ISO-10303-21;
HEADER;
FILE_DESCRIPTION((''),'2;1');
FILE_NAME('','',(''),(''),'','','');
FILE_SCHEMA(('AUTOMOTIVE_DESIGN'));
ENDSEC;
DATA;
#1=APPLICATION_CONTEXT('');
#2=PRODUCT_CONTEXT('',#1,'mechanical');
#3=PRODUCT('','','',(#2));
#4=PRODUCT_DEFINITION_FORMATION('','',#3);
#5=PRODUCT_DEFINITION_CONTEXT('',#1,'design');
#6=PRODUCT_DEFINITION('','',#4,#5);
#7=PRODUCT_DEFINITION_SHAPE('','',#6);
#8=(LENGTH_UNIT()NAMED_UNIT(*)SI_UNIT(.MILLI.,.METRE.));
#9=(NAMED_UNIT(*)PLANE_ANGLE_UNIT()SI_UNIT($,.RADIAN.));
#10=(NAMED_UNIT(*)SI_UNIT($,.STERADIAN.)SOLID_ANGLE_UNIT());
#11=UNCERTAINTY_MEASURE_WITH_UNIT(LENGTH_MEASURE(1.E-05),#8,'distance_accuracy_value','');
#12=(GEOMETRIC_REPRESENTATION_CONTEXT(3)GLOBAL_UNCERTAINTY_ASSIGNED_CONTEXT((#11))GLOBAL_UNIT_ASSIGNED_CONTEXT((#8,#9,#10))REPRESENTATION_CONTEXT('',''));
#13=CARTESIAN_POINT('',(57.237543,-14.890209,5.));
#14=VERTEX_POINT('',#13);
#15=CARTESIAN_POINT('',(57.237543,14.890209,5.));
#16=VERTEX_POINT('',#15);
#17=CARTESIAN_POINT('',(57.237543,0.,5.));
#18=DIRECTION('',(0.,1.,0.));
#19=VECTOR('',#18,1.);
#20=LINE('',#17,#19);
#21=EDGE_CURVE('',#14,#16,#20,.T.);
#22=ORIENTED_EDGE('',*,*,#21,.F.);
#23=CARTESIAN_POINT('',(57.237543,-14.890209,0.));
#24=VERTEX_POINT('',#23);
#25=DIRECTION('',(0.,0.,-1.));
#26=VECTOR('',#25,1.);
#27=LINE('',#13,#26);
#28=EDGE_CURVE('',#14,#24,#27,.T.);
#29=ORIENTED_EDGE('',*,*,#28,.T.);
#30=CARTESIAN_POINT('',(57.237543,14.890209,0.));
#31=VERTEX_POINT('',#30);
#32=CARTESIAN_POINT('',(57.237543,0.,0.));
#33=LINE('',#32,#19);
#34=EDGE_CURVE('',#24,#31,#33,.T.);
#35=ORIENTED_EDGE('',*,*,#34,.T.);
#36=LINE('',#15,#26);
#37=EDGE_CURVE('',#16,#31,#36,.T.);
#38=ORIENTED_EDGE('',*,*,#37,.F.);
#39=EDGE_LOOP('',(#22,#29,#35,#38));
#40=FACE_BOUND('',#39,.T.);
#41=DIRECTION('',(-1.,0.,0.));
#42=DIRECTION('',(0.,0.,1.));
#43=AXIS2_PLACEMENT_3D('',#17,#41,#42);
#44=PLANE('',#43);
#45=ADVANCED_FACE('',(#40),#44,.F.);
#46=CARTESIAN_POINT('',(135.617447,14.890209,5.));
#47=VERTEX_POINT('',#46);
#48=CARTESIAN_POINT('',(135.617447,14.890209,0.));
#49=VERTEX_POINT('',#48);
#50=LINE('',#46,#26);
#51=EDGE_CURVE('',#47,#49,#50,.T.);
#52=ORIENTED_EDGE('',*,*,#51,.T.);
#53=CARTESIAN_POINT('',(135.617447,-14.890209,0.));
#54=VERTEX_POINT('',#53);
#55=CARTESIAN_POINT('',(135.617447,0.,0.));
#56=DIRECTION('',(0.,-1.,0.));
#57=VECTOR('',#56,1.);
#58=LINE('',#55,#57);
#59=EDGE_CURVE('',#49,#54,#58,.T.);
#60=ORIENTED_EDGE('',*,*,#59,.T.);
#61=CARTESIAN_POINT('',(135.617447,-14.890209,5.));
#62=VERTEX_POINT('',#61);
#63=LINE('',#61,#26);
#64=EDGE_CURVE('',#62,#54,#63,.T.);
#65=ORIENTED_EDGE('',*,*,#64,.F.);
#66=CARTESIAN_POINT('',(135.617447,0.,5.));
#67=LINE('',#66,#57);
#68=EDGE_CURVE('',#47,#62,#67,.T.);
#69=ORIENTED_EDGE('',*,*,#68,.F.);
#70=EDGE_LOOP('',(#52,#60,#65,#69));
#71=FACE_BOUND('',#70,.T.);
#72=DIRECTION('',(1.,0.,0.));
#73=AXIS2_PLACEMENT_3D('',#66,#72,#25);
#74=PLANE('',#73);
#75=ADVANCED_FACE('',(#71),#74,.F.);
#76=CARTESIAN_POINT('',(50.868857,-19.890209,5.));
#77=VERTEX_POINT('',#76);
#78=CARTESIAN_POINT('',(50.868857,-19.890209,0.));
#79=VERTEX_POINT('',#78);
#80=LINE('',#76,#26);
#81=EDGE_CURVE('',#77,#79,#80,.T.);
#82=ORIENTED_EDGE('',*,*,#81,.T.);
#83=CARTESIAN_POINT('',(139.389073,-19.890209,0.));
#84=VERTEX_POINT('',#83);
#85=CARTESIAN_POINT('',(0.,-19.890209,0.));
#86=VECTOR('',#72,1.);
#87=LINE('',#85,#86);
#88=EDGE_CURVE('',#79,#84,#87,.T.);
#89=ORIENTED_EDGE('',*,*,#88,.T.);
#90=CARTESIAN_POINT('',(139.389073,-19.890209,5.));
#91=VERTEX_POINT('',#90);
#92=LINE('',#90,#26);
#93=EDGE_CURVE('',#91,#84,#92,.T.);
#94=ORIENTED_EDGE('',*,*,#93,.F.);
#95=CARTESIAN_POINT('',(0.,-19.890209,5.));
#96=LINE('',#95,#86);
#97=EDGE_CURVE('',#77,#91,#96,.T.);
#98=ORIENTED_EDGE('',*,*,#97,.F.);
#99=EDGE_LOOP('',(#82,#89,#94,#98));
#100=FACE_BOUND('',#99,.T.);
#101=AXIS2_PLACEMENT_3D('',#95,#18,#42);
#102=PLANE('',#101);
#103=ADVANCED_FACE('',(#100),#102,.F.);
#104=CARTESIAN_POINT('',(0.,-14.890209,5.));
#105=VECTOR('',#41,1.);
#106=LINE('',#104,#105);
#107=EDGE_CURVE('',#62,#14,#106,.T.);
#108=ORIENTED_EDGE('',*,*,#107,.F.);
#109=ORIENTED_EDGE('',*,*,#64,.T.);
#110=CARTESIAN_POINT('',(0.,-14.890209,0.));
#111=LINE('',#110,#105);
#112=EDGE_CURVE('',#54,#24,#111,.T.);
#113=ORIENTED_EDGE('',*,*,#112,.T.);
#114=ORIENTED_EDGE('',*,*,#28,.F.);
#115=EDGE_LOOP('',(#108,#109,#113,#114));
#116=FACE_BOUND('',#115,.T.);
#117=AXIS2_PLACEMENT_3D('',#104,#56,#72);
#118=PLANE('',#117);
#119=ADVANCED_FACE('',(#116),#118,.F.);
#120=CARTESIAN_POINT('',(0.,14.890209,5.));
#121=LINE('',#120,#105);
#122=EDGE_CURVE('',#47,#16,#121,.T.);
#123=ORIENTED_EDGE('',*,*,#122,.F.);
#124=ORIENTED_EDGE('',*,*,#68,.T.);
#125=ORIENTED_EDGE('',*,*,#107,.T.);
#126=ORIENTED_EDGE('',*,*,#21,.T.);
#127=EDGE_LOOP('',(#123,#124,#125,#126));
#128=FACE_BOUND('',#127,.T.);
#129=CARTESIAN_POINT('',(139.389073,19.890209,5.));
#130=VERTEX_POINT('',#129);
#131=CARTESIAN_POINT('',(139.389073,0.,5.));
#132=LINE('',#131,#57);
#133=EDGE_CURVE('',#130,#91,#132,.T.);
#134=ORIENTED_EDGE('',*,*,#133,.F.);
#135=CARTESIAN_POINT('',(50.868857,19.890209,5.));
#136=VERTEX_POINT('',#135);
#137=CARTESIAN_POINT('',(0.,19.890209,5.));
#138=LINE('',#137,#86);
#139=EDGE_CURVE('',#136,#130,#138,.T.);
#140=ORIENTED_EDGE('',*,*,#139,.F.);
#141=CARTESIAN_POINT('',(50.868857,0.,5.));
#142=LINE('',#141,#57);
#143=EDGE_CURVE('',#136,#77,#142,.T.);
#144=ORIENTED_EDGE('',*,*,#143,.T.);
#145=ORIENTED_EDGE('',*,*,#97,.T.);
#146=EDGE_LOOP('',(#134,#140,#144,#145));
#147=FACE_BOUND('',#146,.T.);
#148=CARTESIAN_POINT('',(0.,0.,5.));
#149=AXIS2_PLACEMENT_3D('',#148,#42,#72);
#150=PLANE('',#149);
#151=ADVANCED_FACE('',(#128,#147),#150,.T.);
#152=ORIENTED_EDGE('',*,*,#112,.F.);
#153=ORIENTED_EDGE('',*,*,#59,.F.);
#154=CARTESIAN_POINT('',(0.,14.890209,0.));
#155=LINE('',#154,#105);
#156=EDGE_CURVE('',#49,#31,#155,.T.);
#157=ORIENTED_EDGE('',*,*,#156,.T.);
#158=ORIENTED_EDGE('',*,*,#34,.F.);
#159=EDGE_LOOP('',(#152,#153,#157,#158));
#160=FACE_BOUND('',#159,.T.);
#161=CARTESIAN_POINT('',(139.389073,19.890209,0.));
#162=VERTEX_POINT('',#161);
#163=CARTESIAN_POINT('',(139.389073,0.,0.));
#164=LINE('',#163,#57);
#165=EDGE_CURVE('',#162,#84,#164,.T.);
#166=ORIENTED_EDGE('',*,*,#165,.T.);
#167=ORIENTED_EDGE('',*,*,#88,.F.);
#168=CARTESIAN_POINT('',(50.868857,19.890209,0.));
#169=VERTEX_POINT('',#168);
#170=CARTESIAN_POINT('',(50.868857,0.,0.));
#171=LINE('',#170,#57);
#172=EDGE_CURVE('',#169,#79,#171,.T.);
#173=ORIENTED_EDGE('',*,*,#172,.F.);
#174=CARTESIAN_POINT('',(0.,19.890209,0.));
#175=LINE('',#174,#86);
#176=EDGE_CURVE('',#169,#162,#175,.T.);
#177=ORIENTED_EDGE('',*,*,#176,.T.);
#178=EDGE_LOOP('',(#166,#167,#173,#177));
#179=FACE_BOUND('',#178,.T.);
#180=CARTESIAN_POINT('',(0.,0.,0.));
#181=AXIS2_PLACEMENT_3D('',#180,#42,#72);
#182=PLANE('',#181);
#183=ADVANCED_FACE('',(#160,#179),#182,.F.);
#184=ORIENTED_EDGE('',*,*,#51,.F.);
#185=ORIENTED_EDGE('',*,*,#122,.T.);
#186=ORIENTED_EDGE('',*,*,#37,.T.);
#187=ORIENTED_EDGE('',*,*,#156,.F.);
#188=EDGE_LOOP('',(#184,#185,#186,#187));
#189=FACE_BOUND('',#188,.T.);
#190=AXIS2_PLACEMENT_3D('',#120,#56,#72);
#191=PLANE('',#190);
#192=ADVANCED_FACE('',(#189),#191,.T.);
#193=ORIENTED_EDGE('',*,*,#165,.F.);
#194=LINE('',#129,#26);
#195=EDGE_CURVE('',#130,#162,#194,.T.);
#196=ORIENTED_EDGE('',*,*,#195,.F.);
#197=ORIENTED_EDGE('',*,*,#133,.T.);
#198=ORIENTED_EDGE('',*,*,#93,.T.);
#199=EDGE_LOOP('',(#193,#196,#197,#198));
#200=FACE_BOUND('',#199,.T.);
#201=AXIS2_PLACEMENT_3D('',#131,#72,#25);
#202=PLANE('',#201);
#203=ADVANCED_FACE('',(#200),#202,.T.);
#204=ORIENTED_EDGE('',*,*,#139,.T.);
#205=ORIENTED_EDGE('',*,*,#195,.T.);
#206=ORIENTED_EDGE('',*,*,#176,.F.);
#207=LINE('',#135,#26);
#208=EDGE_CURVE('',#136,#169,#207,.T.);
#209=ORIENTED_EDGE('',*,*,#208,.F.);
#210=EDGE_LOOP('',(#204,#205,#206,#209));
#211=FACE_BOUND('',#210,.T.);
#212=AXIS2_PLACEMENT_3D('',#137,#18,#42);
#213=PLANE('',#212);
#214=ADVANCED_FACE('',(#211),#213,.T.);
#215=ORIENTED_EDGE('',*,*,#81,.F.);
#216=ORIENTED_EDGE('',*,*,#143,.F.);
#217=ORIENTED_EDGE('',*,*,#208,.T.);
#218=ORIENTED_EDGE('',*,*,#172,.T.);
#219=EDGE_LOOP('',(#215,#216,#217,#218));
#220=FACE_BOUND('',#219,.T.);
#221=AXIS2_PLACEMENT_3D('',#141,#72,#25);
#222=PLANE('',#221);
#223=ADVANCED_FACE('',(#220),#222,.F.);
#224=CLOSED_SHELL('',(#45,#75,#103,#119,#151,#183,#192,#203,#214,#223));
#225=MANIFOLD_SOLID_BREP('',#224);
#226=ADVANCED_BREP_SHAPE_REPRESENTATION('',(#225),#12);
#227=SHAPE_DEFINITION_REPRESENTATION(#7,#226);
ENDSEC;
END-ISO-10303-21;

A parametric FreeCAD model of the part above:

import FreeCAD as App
import Part
import Sketcher

V = App.Vector
Q = App.Units.Quantity

doc = App.newDocument("Part")
params = doc.addObject("Spreadsheet::Sheet", "Params")
for row, (alias, value) in enumerate([
    ("pad1_length", "5 mm"),
], start=1):
    params.set(f"A{row}", alias)
    params.set(f"B{row}", "=" + value)
    params.setAlias(f"B{row}", alias)

body = doc.addObject("PartDesign::Body", "Body")

# Sketch on XY plane
sketch1 = body.newObject("Sketcher::SketchObject", "Sketch")
sketch1.AttachmentSupport = (doc.getObject("XY_Plane"), [""])
sketch1.MapMode = "FlatFace"
sketch1.addGeometry(Part.LineSegment(V(51, 20, 0), V(51, -20, 0)), False)
sketch1.addGeometry(Part.LineSegment(V(51, -20, 0), V(139, -20, 0)), False)
sketch1.addGeometry(Part.LineSegment(V(139, -20, 0), V(139, 20, 0)), False)
sketch1.addGeometry(Part.LineSegment(V(139, 20, 0), V(51, 20, 0)), False)
sketch1.addGeometry(Part.LineSegment(V(136, -15, 0), V(57, -15, 0)), False)
sketch1.addGeometry(Part.LineSegment(V(57, -15, 0), V(57, 15, 0)), False)
sketch1.addGeometry(Part.LineSegment(V(57, 15, 0), V(136, 15, 0)), False)
sketch1.addGeometry(Part.LineSegment(V(136, 15, 0), V(136, -15, 0)), False)
sketch1.addConstraint(Sketcher.Constraint("Coincident", 0, 2, 1, 1))
sketch1.addConstraint(Sketcher.Constraint("Coincident", 1, 2, 2, 1))
sketch1.addConstraint(Sketcher.Constraint("Coincident", 2, 2, 3, 1))
sketch1.addConstraint(Sketcher.Constraint("Coincident", 3, 2, 0, 1))
sketch1.addConstraint(Sketcher.Constraint("Coincident", 4, 2, 5, 1))
sketch1.addConstraint(Sketcher.Constraint("Coincident", 5, 2, 6, 1))
sketch1.addConstraint(Sketcher.Constraint("Coincident", 6, 2, 7, 1))
sketch1.addConstraint(Sketcher.Constraint("Coincident", 7, 2, 4, 1))
sketch1.addConstraint(Sketcher.Constraint("Vertical", 0))
sketch1.addConstraint(Sketcher.Constraint("Horizontal", 1))
sketch1.addConstraint(Sketcher.Constraint("Vertical", 2))
sketch1.addConstraint(Sketcher.Constraint("Horizontal", 3))
sketch1.addConstraint(Sketcher.Constraint("Horizontal", 4))
sketch1.addConstraint(Sketcher.Constraint("Vertical", 5))
sketch1.addConstraint(Sketcher.Constraint("Horizontal", 6))
sketch1.addConstraint(Sketcher.Constraint("Vertical", 7))
sketch1.addConstraint(Sketcher.Constraint("DistanceY", 0, 2, 4, 2, Q("5 mm")))
sketch1.addConstraint(Sketcher.Constraint("DistanceY", 5, 2, 3, 2, Q("5 mm")))
sketch1.addConstraint(Sketcher.Constraint("DistanceY", 0, 2, 0, 1, Q("39.780418 mm")))
sketch1.addConstraint(Sketcher.Constraint("DistanceX", 1, 1, 1, 2, Q("88.520215 mm")))
sketch1.addConstraint(Sketcher.Constraint("DistanceX", 4, 2, 4, 1, Q("78.379904 mm")))
sketch1.addConstraint(Sketcher.Constraint("DistanceY", 0, 2, -1, 1, Q("19.890209 mm")))
sketch1.addConstraint(Sketcher.Constraint("DistanceX", 4, 2, 1, 2, Q("82.15153 mm")))
sketch1.addConstraint(Sketcher.Constraint("DistanceX", -1, 1, 0, 2, Q("50.868857 mm")))
pad1 = body.newObject("PartDesign::Pad", "Pad")
pad1.Profile = sketch1
pad1.setExpression("Length", "Params.pad1_length")

doc.recompute()
